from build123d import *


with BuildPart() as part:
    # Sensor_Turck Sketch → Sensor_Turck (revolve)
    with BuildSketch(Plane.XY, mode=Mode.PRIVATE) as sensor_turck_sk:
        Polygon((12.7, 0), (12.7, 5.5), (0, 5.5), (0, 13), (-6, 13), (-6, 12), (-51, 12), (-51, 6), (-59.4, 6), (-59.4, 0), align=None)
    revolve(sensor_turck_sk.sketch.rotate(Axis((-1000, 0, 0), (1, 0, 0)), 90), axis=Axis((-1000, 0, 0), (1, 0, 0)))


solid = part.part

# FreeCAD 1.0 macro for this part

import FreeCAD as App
import Part
import Sketcher

V = App.Vector

doc = App.newDocument("Part")
params = doc.addObject("Spreadsheet::Sheet", "Params")
for row, (alias, value) in enumerate([
    ("sketch1_width", "6 mm"),
    ("sketch1_width2", "45 mm"),
    ("sketch1_height", "1 mm"),
    ("sketch1_width3", "12.7 mm"),
    ("sketch1_width4", "8.4 mm"),
    ("revolution_angle", "360 deg"),
], start=1):
    params.set(f"A{row}", alias)
    params.set(f"B{row}", "=" + value)
    params.setAlias(f"B{row}", alias)

body = doc.addObject("PartDesign::Body", "Body")

# Sketch on XY plane
sketch1 = body.newObject("Sketcher::SketchObject", "Sketch")
sketch1.AttachmentSupport = (doc.getObject("XY_Plane"), [""])
sketch1.MapMode = "FlatFace"
sketch1.addGeometry(Part.LineSegment(V(12.7, 0, 0), V(12.7, 5.5, 0)), False)
sketch1.addGeometry(Part.LineSegment(V(12.7, 5.5, 0), V(0, 5.5, 0)), False)
sketch1.addGeometry(Part.LineSegment(V(0, 5.5, 0), V(0, 13, 0)), False)
sketch1.addGeometry(Part.LineSegment(V(0, 13, 0), V(-6, 13, 0)), False)
sketch1.addGeometry(Part.LineSegment(V(-6, 13, 0), V(-6, 12, 0)), False)
sketch1.addGeometry(Part.LineSegment(V(-6, 12, 0), V(-51, 12, 0)), False)
sketch1.addGeometry(Part.LineSegment(V(-51, 12, 0), V(-51, 6, 0)), False)
sketch1.addGeometry(Part.LineSegment(V(-51, 6, 0), V(-59.4, 6, 0)), False)
sketch1.addGeometry(Part.LineSegment(V(-59.4, 6, 0), V(-59.4, 0, 0)), False)
sketch1.addGeometry(Part.LineSegment(V(-59.4, 0, 0), V(12.7, 0, 0)), False)
sketch1.addConstraint(Sketcher.Constraint("Coincident", 0, 2, 1, 1))
sketch1.addConstraint(Sketcher.Constraint("Coincident", 1, 2, 2, 1))
sketch1.addConstraint(Sketcher.Constraint("Coincident", 2, 2, 3, 1))
sketch1.addConstraint(Sketcher.Constraint("Coincident", 3, 2, 4, 1))
sketch1.addConstraint(Sketcher.Constraint("Coincident", 4, 2, 5, 1))
sketch1.addConstraint(Sketcher.Constraint("Coincident", 5, 2, 6, 1))
sketch1.addConstraint(Sketcher.Constraint("Coincident", 6, 2, 7, 1))
sketch1.addConstraint(Sketcher.Constraint("Coincident", 7, 2, 8, 1))
sketch1.addConstraint(Sketcher.Constraint("Coincident", 8, 2, 9, 1))
sketch1.addConstraint(Sketcher.Constraint("Coincident", 9, 2, 0, 1))
sketch1.addConstraint(Sketcher.Constraint("Vertical", 0))
sketch1.addConstraint(Sketcher.Constraint("Horizontal", 1))
sketch1.addConstraint(Sketcher.Constraint("Vertical", 2))
sketch1.addConstraint(Sketcher.Constraint("Horizontal", 3))
sketch1.addConstraint(Sketcher.Constraint("Vertical", 4))
sketch1.addConstraint(Sketcher.Constraint("Horizontal", 5))
sketch1.addConstraint(Sketcher.Constraint("Vertical", 6))
sketch1.addConstraint(Sketcher.Constraint("Horizontal", 7))
sketch1.addConstraint(Sketcher.Constraint("Vertical", 8))
sketch1.addConstraint(Sketcher.Constraint("Horizontal", 9))
sketch1.addConstraint(Sketcher.Constraint("PointOnObject", 1, 2, -2))
sketch1.addConstraint(Sketcher.Constraint("PointOnObject", 8, 2, -1))
sketch1.addConstraint(Sketcher.Constraint("Equal", 3, 6))
sketch1.addConstraint(Sketcher.Constraint("Equal", 6, 8))
sketch1.addConstraint(Sketcher.Constraint("DistanceX", 3, 2, 3, 1, 6.0))
sketch1.addConstraint(Sketcher.Constraint("DistanceX", 5, 2, 5, 1, 45.0))
sketch1.addConstraint(Sketcher.Constraint("DistanceY", 4, 2, 4, 1, 1.0))
sketch1.addConstraint(Sketcher.Constraint("DistanceX", 1, 2, 1, 1, 12.7))
sketch1.addConstraint(Sketcher.Constraint("DistanceX", 7, 2, 7, 1, 8.4))
sketch1.addConstraint(Sketcher.Constraint("DistanceY", 0, 1, 0, 2, 5.5))
sketch1.setExpression("Constraints[24]", "Params.sketch1_width")
sketch1.setExpression("Constraints[25]", "Params.sketch1_width2")
sketch1.setExpression("Constraints[26]", "Params.sketch1_height")
sketch1.setExpression("Constraints[27]", "Params.sketch1_width3")
sketch1.setExpression("Constraints[28]", "Params.sketch1_width4")
revolution = body.newObject("PartDesign::Revolution", "Revolution")
revolution.Profile = sketch1
revolution.ReferenceAxis = (sketch1, ["H_Axis"])
revolution.setExpression("Angle", "Params.revolution_angle")

doc.recompute()
